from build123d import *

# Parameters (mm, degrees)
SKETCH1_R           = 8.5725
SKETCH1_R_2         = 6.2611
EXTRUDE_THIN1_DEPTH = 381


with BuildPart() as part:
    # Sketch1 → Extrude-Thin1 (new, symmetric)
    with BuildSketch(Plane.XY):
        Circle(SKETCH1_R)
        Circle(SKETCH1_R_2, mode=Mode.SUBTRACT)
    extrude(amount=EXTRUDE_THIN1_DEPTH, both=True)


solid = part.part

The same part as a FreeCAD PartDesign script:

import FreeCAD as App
import Part
import Sketcher
from FreeCAD import Vector
Q = App.Units.Quantity

doc = App.newDocument("Part")
body = doc.addObject("PartDesign::Body", "Body")

sketch1 = body.newObject("Sketcher::SketchObject", "Sketch")
sketch1.AttachmentSupport = (doc.getObject("XY_Plane"), [""])
sketch1.MapMode = "FlatFace"
sketch1.addGeometry([
    Part.Circle(Vector(0, 0, 0), Vector(0, 0, 1), 8.5725),
    Part.Circle(Vector(0, 0, 0), Vector(0, 0, 1), 6.2611),
], False)
sketch1.addConstraint([
    Sketcher.Constraint("Coincident", 0, 3, -1, 1),
    Sketcher.Constraint("Coincident", 1, 3, -1, 1),
    Sketcher.Constraint("Diameter", 0, Q("0.675 in")),
    Sketcher.Constraint("Diameter", 1, Q("0.493 in")),
])
pad1 = body.newObject("PartDesign::Pad", "Pad")
pad1.Profile = sketch1
pad1.Length = Q("30 in")
pad1.Midplane = True

doc.recompute()
